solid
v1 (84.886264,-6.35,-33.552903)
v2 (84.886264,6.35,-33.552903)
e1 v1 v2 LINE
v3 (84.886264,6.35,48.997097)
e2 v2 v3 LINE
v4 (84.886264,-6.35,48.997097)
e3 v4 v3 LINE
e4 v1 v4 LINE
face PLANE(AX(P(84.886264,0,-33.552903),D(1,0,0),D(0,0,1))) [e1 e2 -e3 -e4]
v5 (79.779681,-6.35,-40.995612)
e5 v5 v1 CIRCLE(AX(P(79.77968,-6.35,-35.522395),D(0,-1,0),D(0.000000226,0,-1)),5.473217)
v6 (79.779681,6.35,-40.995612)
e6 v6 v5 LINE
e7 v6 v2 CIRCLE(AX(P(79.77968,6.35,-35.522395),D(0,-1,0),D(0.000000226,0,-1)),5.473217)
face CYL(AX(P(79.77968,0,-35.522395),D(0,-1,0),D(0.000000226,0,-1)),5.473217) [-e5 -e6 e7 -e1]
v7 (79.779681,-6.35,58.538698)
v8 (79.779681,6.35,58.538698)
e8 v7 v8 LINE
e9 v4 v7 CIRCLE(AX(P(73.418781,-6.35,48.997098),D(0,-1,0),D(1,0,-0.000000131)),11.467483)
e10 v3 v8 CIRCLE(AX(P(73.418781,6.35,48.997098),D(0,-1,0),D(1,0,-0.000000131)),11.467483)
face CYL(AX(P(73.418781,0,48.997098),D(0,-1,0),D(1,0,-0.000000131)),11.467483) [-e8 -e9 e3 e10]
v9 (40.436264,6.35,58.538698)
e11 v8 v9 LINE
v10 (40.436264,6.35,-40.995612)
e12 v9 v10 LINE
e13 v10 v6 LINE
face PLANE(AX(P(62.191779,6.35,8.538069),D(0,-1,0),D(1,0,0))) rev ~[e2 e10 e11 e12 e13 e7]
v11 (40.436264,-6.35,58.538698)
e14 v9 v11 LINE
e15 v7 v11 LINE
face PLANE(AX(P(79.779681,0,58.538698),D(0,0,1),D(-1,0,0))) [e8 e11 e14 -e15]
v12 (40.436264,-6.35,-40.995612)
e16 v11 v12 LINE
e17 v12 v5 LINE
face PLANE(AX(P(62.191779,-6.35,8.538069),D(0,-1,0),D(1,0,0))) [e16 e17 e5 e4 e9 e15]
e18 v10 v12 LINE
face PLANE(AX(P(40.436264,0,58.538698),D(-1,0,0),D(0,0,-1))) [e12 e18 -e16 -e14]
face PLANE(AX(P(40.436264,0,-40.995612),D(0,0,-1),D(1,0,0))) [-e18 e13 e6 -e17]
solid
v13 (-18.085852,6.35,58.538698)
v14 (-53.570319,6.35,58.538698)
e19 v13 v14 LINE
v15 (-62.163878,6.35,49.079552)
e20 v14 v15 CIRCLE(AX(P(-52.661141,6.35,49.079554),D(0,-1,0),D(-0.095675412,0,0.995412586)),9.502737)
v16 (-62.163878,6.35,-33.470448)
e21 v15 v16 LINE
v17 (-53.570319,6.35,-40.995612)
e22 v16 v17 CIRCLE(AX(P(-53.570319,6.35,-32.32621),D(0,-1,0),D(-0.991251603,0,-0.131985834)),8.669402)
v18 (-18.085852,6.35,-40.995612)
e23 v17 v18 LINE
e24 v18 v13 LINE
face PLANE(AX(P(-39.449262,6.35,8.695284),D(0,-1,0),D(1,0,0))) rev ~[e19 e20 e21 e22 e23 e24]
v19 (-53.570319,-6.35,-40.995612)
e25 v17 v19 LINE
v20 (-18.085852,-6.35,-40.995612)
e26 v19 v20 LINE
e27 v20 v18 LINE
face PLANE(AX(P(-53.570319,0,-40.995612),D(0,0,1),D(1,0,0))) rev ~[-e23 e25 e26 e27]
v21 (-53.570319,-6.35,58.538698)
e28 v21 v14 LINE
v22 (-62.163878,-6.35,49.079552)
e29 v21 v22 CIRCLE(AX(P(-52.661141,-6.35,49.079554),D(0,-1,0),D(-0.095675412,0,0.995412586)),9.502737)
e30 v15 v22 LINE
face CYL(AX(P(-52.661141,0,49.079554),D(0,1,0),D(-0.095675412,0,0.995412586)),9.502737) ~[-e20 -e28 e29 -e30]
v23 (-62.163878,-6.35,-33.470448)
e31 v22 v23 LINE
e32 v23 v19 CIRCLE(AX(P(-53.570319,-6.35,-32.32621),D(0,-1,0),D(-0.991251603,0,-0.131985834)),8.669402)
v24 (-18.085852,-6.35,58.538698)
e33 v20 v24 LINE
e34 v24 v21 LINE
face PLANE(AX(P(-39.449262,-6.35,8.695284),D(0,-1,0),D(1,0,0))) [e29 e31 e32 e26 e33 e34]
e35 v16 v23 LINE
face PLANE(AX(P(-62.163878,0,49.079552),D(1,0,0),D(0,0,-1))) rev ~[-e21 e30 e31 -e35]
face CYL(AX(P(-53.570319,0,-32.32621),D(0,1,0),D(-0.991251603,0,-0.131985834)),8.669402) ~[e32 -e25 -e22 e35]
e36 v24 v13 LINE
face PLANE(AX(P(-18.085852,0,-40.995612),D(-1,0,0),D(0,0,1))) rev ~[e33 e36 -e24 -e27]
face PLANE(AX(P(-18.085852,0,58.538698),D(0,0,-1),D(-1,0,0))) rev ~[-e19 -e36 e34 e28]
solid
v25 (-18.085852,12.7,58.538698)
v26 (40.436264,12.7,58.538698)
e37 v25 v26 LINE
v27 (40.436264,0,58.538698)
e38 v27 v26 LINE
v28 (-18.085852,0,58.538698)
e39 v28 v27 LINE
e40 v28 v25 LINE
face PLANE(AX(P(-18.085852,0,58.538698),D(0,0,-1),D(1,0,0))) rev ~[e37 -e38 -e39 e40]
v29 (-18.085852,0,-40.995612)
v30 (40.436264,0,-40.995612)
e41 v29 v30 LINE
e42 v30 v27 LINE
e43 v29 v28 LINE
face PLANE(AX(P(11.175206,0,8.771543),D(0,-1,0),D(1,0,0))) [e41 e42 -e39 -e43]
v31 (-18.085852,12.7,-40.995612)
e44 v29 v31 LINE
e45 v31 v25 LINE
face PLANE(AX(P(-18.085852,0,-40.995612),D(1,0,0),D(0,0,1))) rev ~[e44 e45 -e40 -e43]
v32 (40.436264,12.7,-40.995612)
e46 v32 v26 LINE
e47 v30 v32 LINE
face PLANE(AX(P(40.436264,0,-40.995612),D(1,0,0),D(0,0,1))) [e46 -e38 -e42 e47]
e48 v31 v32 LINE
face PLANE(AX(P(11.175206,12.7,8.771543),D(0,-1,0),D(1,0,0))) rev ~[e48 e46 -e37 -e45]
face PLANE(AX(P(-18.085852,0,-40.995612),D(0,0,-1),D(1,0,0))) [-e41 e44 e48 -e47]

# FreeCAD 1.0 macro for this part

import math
import FreeCAD as App
import Part
import Sketcher
Q = App.Units.Quantity

doc = App.newDocument("Part")
body = doc.addObject("PartDesign::Body", "Body")
body.AllowCompound = True

# Sketch on XZ plane
sketch1 = body.newObject("Sketcher::SketchObject", "Sketch")
sketch1.AttachmentSupport = (doc.getObject("XZ_Plane"), [""])
sketch1.MapMode = "FlatFace"
sketch1.addGeometry([
    Part.ArcOfCircle(Part.Circle(App.Vector(-53, 49, 0), App.Vector(0, 0, 1), 10), math.radians(95), math.radians(180)),  # 0
    Part.LineSegment(App.Vector(-62, 49, 0), App.Vector(-62, -33, 0)),  # 1
    Part.ArcOfCircle(Part.Circle(App.Vector(-54, -32, 0), App.Vector(0, 0, 1), 9), math.radians(-172), math.radians(-90)),  # 2
    Part.LineSegment(App.Vector(-54, -41, 0), App.Vector(-18, -41, 0)),  # 3
    Part.LineSegment(App.Vector(-18, -41, 0), App.Vector(-18, 59, 0)),  # 4
    Part.LineSegment(App.Vector(-18, 59, 0), App.Vector(-54, 59, 0)),  # 5
    Part.LineSegment(App.Vector(80, 59, 0), App.Vector(40, 59, 0)),  # 6
    Part.LineSegment(App.Vector(40, 59, 0), App.Vector(40, -41, 0)),  # 7
    Part.LineSegment(App.Vector(40, -41, 0), App.Vector(80, -41, 0)),  # 8
    Part.ArcOfCircle(Part.Circle(App.Vector(80, -36, 0), App.Vector(0, 0, 1), 5), math.radians(-90), math.radians(21)),  # 9
    Part.LineSegment(App.Vector(85, -34, 0), App.Vector(85, 49, 0)),  # 10
    Part.ArcOfCircle(Part.Circle(App.Vector(73, 49, 0), App.Vector(0, 0, 1), 11), math.radians(0), math.radians(56)),  # 11
], False)
sketch1.addConstraint([
    Sketcher.Constraint("Tangent", 0, 2, 1, 1),
    Sketcher.Constraint("Coincident", 1, 2, 2, 1),
    Sketcher.Constraint("Tangent", 2, 2, 3, 1),
    Sketcher.Constraint("Coincident", 3, 2, 4, 1),
    Sketcher.Constraint("Coincident", 4, 2, 5, 1),
    Sketcher.Constraint("Coincident", 5, 2, 0, 1),
    Sketcher.Constraint("Coincident", 6, 2, 7, 1),
    Sketcher.Constraint("Coincident", 7, 2, 8, 1),
    Sketcher.Constraint("Tangent", 8, 2, 9, 1),
    Sketcher.Constraint("Coincident", 9, 2, 10, 1),
    Sketcher.Constraint("Tangent", 10, 2, 11, 1),
    Sketcher.Constraint("Coincident", 11, 2, 6, 1),
    Sketcher.Constraint("Vertical", 1),
    Sketcher.Constraint("Horizontal", 3),
    Sketcher.Constraint("Vertical", 4),
    Sketcher.Constraint("Horizontal", 5),
    Sketcher.Constraint("Horizontal", 6),
    Sketcher.Constraint("Vertical", 7),
    Sketcher.Constraint("Horizontal", 8),
    Sketcher.Constraint("Vertical", 10),
    Sketcher.Constraint("Horizontal", 5, 2, 6, 2),
    Sketcher.Constraint("Horizontal", 3, 2, 7, 2),
    Sketcher.Constraint("Vertical", 2, 2, 5, 2),
    Sketcher.Constraint("Vertical", 8, 2, 11, 2),
    Sketcher.Constraint("Equal", 1, 10),
    Sketcher.Constraint("DistanceY", 1, 2, 1, 1, Q("3.25 in")),
    Sketcher.Constraint("DistanceX", 2, 3, 9, 3, Q("5.25 in")),
    Sketcher.Constraint("DistanceX", 7, 2, 9, 2, Q("1.75 in")),
    Sketcher.Constraint("Radius", 0, Q("9.502737 mm")),
    Sketcher.Constraint("Radius", 2, Q("8.669402 mm")),
    Sketcher.Constraint("Radius", 9, Q("5.473217 mm")),
    Sketcher.Constraint("Radius", 11, Q("11.467483 mm")),
    Sketcher.Constraint("DistanceX", 0, 2, 11, 3, Q("5.3378999 in")),
    Sketcher.Constraint("DistanceY", -1, 1, 11, 3, Q("48.997098 mm")),
    Sketcher.Constraint("DistanceX", 3, 1, 3, 2, Q("35.484467 mm")),
    Sketcher.Constraint("DistanceX", 0, 3, -1, 1, Q("52.661141 mm")),
])
pad1 = body.newObject("PartDesign::Pad", "Pad")
pad1.Profile = sketch1
pad1.Length = Q("0.5 in")
pad1.Midplane = True
body2 = doc.addObject("PartDesign::Body", "Body001")

# Sketch on XZ plane
sketch2 = body2.newObject("Sketcher::SketchObject", "Sketch001")
sketch2.AttachmentSupport = (doc.getObject("XZ_Plane001"), [""])
sketch2.MapMode = "FlatFace"
sketch2.addGeometry([
    Part.LineSegment(App.Vector(-18, 59, 0), App.Vector(-18, -41, 0)),
    Part.LineSegment(App.Vector(-18, -41, 0), App.Vector(40, -41, 0)),
    Part.LineSegment(App.Vector(40, -41, 0), App.Vector(40, 59, 0)),
    Part.LineSegment(App.Vector(40, 59, 0), App.Vector(-18, 59, 0)),
], False)
sketch2.addConstraint([
    Sketcher.Constraint("Coincident", 0, 2, 1, 1),
    Sketcher.Constraint("Coincident", 1, 2, 2, 1),
    Sketcher.Constraint("Coincident", 2, 2, 3, 1),
    Sketcher.Constraint("Coincident", 3, 2, 0, 1),
    Sketcher.Constraint("Vertical", 0),
    Sketcher.Constraint("Horizontal", 1),
    Sketcher.Constraint("Vertical", 2),
    Sketcher.Constraint("Horizontal", 3),
    Sketcher.Constraint("DistanceY", 0, 2, 0, 1, Q("99.53431 mm")),
    Sketcher.Constraint("DistanceX", 1, 1, 1, 2, Q("58.522116 mm")),
    Sketcher.Constraint("DistanceX", 0, 2, -1, 1, Q("18.085852 mm")),
    Sketcher.Constraint("DistanceY", 0, 2, -1, 1, Q("40.995612 mm")),
])
pad2 = body2.newObject("PartDesign::Pad", "Pad001")
pad2.Profile = sketch2
pad2.Length = Q("0.5 in")
pad2.Reversed = True

doc.recompute()
